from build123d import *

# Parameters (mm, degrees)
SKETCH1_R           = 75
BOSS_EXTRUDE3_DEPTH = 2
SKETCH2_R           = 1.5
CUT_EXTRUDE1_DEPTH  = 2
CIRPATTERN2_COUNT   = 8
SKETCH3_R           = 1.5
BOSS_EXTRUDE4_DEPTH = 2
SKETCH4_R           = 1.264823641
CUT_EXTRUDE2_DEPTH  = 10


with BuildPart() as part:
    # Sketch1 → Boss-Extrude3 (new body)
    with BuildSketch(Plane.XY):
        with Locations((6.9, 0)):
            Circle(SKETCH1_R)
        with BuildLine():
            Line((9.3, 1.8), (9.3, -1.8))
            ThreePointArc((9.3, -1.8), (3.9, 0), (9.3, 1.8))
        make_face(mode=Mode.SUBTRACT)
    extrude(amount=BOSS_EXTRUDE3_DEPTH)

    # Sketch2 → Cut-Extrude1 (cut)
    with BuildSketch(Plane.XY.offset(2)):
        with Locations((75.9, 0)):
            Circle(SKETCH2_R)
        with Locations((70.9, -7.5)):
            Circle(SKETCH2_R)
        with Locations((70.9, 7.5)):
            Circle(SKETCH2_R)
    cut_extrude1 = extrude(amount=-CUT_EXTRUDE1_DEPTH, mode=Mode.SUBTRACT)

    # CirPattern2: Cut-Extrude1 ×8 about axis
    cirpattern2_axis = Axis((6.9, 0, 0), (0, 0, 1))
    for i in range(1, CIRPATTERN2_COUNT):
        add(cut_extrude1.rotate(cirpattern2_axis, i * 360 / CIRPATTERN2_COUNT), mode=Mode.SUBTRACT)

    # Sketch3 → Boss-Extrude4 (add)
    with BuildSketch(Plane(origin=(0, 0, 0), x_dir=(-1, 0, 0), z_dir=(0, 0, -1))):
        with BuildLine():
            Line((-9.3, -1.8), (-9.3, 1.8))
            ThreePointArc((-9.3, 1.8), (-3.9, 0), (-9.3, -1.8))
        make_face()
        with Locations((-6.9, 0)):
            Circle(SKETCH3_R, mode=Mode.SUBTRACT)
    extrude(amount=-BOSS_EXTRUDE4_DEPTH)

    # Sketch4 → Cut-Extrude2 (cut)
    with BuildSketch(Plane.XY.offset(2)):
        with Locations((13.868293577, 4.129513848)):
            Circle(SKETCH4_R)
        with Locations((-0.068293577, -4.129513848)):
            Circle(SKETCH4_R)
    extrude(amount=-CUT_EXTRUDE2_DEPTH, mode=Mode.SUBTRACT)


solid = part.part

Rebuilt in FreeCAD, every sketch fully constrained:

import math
import FreeCAD as App
import Part
import Sketcher

V = App.Vector
Q = App.Units.Quantity

doc = App.newDocument("Part")
body = doc.addObject("PartDesign::Body", "Body")

# Sketch on XY plane
sketch1 = body.newObject("Sketcher::SketchObject", "Sketch")
sketch1.AttachmentSupport = (doc.getObject("XY_Plane"), [""])
sketch1.MapMode = "FlatFace"
sketch1.addGeometry([
    Part.Circle(V(6.9, 0, 0), V(0, 0, 1), 75),
    Part.ArcOfCircle(Part.Circle(V(6.9, 0, 0), V(0, 0, 1), 3), math.radians(37), math.radians(323)),
    Part.LineSegment(V(9.3, 1.8, 0), V(9.3, -1.8, 0)),
], False)
sketch1.addConstraint([
    Sketcher.Constraint("Coincident", 1, 1, 2, 1),
    Sketcher.Constraint("Coincident", 2, 2, 1, 2),
    Sketcher.Constraint("Vertical", 2),
    Sketcher.Constraint("Coincident", 1, 3, 0, 3),
    Sketcher.Constraint("PointOnObject", 0, 3, -1),
    Sketcher.Constraint("Diameter", 0, Q("150 mm")),
    Sketcher.Constraint("Radius", 1, Q("3 mm")),
    Sketcher.Constraint("DistanceY", 2, 2, 2, 1, Q("3.6 mm")),
    Sketcher.Constraint("DistanceX", -1, 1, 0, 3, Q("6.9 mm")),
])
pad1 = body.newObject("PartDesign::Pad", "Pad")
pad1.Profile = sketch1
pad1.Length = 2

# Sketch on XY plane
sketch2 = body.newObject("Sketcher::SketchObject", "Sketch001")
sketch2.AttachmentSupport = (doc.getObject("XY_Plane"), [""])
sketch2.MapMode = "FlatFace"
sketch2.AttachmentOffset = App.Placement(V(0, 0, 2), App.Rotation())
sketch2.addGeometry([
    Part.Circle(V(75.9, 0, 0), V(0, 0, 1), 1.5),
    Part.Circle(V(70.9, -7.5, 0), V(0, 0, 1), 1.5),
    Part.Circle(V(70.9, 7.5, 0), V(0, 0, 1), 1.5),
], False)
sketch2.addConstraint([
    Sketcher.Constraint("Equal", 0, 1),
    Sketcher.Constraint("Equal", 1, 2),
    Sketcher.Constraint("Symmetric", 1, 3, 2, 3, -1),
    Sketcher.Constraint("PointOnObject", 0, 3, -1),
    Sketcher.Constraint("Diameter", 0, Q("3 mm")),
    Sketcher.Constraint("DistanceX", 1, 3, 0, 3, Q("5 mm")),
    Sketcher.Constraint("DistanceY", 1, 3, 2, 3, Q("15 mm")),
    Sketcher.Constraint("DistanceX", -1, 1, 0, 3, Q("75.9 mm")),
])
pocket1 = body.newObject("PartDesign::Pocket", "Pocket")
pocket1.Profile = sketch2
pocket1.Length = 2
doc.recompute()

datumline = body.newObject("PartDesign::Line", "DatumLine")
datumline.Placement = App.Placement(V(6.9, 0, 0), App.Rotation(V(0, 0, 1), V(0, 0, 1)))
polarpattern = body.newObject("PartDesign::PolarPattern", "PolarPattern")
polarpattern.Originals = [pocket1]
polarpattern.Axis = (datumline, [""])
polarpattern.Angle = 360
polarpattern.Occurrences = 8
body.Tip = polarpattern

# Sketch on XY plane
sketch3 = body.newObject("Sketcher::SketchObject", "Sketch002")
sketch3.AttachmentSupport = (doc.getObject("XY_Plane"), [""])
sketch3.MapMode = "FlatFace"
sketch3.addGeometry([
    Part.LineSegment(V(9.3, 1.8, 0), V(9.3, -1.8, 0)),
    Part.ArcOfCircle(Part.Circle(V(6.9, 0, 0), V(0, 0, 1), 3), math.radians(37), math.radians(323)),
    Part.Circle(V(6.9, 0, 0), V(0, 0, 1), 1.5),
], False)
sketch3.addConstraint([
    Sketcher.Constraint("Coincident", 0, 1, 1, 1),
    Sketcher.Constraint("Coincident", 1, 2, 0, 2),
    Sketcher.Constraint("Vertical", 0),
    Sketcher.Constraint("Coincident", 2, 3, 1, 3),
    Sketcher.Constraint("PointOnObject", 1, 3, -1),
    Sketcher.Constraint("Diameter", 2, Q("3 mm")),
    Sketcher.Constraint("Radius", 1, Q("3 mm")),
    Sketcher.Constraint("DistanceY", 0, 2, 0, 1, Q("3.6 mm")),
    Sketcher.Constraint("DistanceX", -1, 1, 1, 3, Q("6.9 mm")),
])
pad2 = body.newObject("PartDesign::Pad", "Pad001")
pad2.Profile = sketch3
pad2.Length = 2

# Sketch on XY plane
sketch4 = body.newObject("Sketcher::SketchObject", "Sketch003")
sketch4.AttachmentSupport = (doc.getObject("XY_Plane"), [""])
sketch4.MapMode = "FlatFace"
sketch4.AttachmentOffset = App.Placement(V(0, 0, 2), App.Rotation())
sketch4.addGeometry([
    Part.Circle(V(13.9, 4.1, 0), V(0, 0, 1), 1.3),
    Part.Circle(V(-0.1, -4.1, 0), V(0, 0, 1), 1.3),
], False)
sketch4.addConstraint([
    Sketcher.Constraint("Equal", 0, 1),
    Sketcher.Constraint("Diameter", 0, Q("2.529647 mm")),
    Sketcher.Constraint("DistanceX", -1, 1, 0, 3, Q("13.868294 mm")),
    Sketcher.Constraint("DistanceY", -1, 1, 0, 3, Q("4.129514 mm")),
    Sketcher.Constraint("DistanceX", 1, 3, -1, 1, Q("0.068294 mm")),
    Sketcher.Constraint("DistanceY", 1, 3, -1, 1, Q("4.129514 mm")),
])
pocket2 = body.newObject("PartDesign::Pocket", "Pocket001")
pocket2.Profile = sketch4
pocket2.Length = 10

doc.recompute()
